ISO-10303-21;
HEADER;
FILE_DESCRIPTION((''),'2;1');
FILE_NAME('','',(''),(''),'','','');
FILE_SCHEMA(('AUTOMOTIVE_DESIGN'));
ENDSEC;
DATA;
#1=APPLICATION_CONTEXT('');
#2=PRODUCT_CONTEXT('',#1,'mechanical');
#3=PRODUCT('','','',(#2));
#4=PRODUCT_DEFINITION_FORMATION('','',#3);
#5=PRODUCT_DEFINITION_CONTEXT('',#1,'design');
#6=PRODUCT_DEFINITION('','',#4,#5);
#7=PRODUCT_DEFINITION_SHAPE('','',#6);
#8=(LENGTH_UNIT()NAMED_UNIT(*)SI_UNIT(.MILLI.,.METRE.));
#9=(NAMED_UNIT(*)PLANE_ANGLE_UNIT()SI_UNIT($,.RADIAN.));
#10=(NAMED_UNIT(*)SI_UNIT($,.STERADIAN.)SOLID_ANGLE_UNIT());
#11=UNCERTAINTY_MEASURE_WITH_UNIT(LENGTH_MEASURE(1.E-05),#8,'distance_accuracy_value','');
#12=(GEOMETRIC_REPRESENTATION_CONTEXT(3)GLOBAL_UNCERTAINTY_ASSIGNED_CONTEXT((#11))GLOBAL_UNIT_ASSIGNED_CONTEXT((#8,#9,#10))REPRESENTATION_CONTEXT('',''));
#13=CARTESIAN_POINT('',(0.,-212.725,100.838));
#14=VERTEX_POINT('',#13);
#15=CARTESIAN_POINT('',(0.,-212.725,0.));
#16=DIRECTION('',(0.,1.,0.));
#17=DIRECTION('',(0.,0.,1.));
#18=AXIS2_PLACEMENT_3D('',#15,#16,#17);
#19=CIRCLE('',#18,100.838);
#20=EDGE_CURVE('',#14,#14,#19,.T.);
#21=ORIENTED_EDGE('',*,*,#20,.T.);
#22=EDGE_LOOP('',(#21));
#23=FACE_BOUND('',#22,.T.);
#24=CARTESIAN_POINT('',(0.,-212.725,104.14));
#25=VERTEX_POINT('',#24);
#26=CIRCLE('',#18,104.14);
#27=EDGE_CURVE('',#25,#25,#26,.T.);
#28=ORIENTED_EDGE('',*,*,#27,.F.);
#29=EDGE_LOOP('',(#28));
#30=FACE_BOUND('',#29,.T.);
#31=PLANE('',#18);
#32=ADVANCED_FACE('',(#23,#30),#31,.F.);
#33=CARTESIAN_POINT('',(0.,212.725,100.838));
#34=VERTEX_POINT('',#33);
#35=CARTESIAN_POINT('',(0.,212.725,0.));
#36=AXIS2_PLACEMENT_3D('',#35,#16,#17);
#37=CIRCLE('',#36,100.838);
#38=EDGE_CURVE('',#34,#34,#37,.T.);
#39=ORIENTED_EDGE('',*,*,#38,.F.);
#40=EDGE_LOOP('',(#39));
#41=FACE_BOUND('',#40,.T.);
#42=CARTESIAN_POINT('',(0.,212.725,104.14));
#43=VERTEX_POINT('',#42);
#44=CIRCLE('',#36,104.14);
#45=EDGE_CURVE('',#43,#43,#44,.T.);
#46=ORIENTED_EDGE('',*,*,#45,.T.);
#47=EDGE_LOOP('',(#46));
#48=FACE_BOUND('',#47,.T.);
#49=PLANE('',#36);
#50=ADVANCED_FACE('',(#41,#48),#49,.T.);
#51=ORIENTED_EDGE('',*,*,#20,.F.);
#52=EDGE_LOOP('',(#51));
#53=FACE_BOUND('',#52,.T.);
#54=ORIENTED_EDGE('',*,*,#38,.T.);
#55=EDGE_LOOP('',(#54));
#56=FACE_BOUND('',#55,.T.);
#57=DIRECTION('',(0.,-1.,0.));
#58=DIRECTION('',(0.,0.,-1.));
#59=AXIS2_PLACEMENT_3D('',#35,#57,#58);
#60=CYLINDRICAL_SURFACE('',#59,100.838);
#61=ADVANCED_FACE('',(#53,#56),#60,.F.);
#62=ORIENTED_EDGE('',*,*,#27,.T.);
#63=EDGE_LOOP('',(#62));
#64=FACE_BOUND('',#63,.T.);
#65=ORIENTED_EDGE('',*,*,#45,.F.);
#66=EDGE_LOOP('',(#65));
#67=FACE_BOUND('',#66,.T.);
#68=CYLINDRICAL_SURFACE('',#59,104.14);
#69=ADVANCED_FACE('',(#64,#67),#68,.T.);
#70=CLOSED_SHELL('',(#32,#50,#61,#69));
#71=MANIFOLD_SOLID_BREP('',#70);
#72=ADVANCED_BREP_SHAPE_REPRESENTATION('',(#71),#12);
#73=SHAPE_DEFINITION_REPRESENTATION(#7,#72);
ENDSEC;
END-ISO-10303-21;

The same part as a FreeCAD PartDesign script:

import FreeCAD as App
import Part
import Sketcher
from FreeCAD import Vector
Q = App.Units.Quantity

doc = App.newDocument("Part")
body = doc.addObject("PartDesign::Body", "Body")

sketch1 = doc.addObject("Sketcher::SketchObject", "Sketch")
body.addObject(sketch1)
sketch1.AttachmentSupport = (doc.XZ_Plane, [""])
sketch1.MapMode = "FlatFace"
sketch1.addGeometry(Part.Circle(Vector(0, 0, 0), Vector(0, 0, 1), 104), False)
sketch1.addGeometry(Part.Circle(Vector(0, 0, 0), Vector(0, 0, 1), 101), False)
sketch1.addConstraint(Sketcher.Constraint("Coincident", 0, 3, -1, 1))
sketch1.addConstraint(Sketcher.Constraint("Coincident", 1, 3, -1, 1))
sketch1.addConstraint(Sketcher.Constraint("Diameter", 0, Q("8.2 in")))
sketch1.addConstraint(Sketcher.Constraint("Diameter", 1, Q("7.94 in")))
pad1 = doc.addObject("PartDesign::Pad", "Pad")
body.addObject(pad1)
pad1.Profile = sketch1
pad1.Length = Q("16.75 in")
pad1.Midplane = True

doc.recompute()
